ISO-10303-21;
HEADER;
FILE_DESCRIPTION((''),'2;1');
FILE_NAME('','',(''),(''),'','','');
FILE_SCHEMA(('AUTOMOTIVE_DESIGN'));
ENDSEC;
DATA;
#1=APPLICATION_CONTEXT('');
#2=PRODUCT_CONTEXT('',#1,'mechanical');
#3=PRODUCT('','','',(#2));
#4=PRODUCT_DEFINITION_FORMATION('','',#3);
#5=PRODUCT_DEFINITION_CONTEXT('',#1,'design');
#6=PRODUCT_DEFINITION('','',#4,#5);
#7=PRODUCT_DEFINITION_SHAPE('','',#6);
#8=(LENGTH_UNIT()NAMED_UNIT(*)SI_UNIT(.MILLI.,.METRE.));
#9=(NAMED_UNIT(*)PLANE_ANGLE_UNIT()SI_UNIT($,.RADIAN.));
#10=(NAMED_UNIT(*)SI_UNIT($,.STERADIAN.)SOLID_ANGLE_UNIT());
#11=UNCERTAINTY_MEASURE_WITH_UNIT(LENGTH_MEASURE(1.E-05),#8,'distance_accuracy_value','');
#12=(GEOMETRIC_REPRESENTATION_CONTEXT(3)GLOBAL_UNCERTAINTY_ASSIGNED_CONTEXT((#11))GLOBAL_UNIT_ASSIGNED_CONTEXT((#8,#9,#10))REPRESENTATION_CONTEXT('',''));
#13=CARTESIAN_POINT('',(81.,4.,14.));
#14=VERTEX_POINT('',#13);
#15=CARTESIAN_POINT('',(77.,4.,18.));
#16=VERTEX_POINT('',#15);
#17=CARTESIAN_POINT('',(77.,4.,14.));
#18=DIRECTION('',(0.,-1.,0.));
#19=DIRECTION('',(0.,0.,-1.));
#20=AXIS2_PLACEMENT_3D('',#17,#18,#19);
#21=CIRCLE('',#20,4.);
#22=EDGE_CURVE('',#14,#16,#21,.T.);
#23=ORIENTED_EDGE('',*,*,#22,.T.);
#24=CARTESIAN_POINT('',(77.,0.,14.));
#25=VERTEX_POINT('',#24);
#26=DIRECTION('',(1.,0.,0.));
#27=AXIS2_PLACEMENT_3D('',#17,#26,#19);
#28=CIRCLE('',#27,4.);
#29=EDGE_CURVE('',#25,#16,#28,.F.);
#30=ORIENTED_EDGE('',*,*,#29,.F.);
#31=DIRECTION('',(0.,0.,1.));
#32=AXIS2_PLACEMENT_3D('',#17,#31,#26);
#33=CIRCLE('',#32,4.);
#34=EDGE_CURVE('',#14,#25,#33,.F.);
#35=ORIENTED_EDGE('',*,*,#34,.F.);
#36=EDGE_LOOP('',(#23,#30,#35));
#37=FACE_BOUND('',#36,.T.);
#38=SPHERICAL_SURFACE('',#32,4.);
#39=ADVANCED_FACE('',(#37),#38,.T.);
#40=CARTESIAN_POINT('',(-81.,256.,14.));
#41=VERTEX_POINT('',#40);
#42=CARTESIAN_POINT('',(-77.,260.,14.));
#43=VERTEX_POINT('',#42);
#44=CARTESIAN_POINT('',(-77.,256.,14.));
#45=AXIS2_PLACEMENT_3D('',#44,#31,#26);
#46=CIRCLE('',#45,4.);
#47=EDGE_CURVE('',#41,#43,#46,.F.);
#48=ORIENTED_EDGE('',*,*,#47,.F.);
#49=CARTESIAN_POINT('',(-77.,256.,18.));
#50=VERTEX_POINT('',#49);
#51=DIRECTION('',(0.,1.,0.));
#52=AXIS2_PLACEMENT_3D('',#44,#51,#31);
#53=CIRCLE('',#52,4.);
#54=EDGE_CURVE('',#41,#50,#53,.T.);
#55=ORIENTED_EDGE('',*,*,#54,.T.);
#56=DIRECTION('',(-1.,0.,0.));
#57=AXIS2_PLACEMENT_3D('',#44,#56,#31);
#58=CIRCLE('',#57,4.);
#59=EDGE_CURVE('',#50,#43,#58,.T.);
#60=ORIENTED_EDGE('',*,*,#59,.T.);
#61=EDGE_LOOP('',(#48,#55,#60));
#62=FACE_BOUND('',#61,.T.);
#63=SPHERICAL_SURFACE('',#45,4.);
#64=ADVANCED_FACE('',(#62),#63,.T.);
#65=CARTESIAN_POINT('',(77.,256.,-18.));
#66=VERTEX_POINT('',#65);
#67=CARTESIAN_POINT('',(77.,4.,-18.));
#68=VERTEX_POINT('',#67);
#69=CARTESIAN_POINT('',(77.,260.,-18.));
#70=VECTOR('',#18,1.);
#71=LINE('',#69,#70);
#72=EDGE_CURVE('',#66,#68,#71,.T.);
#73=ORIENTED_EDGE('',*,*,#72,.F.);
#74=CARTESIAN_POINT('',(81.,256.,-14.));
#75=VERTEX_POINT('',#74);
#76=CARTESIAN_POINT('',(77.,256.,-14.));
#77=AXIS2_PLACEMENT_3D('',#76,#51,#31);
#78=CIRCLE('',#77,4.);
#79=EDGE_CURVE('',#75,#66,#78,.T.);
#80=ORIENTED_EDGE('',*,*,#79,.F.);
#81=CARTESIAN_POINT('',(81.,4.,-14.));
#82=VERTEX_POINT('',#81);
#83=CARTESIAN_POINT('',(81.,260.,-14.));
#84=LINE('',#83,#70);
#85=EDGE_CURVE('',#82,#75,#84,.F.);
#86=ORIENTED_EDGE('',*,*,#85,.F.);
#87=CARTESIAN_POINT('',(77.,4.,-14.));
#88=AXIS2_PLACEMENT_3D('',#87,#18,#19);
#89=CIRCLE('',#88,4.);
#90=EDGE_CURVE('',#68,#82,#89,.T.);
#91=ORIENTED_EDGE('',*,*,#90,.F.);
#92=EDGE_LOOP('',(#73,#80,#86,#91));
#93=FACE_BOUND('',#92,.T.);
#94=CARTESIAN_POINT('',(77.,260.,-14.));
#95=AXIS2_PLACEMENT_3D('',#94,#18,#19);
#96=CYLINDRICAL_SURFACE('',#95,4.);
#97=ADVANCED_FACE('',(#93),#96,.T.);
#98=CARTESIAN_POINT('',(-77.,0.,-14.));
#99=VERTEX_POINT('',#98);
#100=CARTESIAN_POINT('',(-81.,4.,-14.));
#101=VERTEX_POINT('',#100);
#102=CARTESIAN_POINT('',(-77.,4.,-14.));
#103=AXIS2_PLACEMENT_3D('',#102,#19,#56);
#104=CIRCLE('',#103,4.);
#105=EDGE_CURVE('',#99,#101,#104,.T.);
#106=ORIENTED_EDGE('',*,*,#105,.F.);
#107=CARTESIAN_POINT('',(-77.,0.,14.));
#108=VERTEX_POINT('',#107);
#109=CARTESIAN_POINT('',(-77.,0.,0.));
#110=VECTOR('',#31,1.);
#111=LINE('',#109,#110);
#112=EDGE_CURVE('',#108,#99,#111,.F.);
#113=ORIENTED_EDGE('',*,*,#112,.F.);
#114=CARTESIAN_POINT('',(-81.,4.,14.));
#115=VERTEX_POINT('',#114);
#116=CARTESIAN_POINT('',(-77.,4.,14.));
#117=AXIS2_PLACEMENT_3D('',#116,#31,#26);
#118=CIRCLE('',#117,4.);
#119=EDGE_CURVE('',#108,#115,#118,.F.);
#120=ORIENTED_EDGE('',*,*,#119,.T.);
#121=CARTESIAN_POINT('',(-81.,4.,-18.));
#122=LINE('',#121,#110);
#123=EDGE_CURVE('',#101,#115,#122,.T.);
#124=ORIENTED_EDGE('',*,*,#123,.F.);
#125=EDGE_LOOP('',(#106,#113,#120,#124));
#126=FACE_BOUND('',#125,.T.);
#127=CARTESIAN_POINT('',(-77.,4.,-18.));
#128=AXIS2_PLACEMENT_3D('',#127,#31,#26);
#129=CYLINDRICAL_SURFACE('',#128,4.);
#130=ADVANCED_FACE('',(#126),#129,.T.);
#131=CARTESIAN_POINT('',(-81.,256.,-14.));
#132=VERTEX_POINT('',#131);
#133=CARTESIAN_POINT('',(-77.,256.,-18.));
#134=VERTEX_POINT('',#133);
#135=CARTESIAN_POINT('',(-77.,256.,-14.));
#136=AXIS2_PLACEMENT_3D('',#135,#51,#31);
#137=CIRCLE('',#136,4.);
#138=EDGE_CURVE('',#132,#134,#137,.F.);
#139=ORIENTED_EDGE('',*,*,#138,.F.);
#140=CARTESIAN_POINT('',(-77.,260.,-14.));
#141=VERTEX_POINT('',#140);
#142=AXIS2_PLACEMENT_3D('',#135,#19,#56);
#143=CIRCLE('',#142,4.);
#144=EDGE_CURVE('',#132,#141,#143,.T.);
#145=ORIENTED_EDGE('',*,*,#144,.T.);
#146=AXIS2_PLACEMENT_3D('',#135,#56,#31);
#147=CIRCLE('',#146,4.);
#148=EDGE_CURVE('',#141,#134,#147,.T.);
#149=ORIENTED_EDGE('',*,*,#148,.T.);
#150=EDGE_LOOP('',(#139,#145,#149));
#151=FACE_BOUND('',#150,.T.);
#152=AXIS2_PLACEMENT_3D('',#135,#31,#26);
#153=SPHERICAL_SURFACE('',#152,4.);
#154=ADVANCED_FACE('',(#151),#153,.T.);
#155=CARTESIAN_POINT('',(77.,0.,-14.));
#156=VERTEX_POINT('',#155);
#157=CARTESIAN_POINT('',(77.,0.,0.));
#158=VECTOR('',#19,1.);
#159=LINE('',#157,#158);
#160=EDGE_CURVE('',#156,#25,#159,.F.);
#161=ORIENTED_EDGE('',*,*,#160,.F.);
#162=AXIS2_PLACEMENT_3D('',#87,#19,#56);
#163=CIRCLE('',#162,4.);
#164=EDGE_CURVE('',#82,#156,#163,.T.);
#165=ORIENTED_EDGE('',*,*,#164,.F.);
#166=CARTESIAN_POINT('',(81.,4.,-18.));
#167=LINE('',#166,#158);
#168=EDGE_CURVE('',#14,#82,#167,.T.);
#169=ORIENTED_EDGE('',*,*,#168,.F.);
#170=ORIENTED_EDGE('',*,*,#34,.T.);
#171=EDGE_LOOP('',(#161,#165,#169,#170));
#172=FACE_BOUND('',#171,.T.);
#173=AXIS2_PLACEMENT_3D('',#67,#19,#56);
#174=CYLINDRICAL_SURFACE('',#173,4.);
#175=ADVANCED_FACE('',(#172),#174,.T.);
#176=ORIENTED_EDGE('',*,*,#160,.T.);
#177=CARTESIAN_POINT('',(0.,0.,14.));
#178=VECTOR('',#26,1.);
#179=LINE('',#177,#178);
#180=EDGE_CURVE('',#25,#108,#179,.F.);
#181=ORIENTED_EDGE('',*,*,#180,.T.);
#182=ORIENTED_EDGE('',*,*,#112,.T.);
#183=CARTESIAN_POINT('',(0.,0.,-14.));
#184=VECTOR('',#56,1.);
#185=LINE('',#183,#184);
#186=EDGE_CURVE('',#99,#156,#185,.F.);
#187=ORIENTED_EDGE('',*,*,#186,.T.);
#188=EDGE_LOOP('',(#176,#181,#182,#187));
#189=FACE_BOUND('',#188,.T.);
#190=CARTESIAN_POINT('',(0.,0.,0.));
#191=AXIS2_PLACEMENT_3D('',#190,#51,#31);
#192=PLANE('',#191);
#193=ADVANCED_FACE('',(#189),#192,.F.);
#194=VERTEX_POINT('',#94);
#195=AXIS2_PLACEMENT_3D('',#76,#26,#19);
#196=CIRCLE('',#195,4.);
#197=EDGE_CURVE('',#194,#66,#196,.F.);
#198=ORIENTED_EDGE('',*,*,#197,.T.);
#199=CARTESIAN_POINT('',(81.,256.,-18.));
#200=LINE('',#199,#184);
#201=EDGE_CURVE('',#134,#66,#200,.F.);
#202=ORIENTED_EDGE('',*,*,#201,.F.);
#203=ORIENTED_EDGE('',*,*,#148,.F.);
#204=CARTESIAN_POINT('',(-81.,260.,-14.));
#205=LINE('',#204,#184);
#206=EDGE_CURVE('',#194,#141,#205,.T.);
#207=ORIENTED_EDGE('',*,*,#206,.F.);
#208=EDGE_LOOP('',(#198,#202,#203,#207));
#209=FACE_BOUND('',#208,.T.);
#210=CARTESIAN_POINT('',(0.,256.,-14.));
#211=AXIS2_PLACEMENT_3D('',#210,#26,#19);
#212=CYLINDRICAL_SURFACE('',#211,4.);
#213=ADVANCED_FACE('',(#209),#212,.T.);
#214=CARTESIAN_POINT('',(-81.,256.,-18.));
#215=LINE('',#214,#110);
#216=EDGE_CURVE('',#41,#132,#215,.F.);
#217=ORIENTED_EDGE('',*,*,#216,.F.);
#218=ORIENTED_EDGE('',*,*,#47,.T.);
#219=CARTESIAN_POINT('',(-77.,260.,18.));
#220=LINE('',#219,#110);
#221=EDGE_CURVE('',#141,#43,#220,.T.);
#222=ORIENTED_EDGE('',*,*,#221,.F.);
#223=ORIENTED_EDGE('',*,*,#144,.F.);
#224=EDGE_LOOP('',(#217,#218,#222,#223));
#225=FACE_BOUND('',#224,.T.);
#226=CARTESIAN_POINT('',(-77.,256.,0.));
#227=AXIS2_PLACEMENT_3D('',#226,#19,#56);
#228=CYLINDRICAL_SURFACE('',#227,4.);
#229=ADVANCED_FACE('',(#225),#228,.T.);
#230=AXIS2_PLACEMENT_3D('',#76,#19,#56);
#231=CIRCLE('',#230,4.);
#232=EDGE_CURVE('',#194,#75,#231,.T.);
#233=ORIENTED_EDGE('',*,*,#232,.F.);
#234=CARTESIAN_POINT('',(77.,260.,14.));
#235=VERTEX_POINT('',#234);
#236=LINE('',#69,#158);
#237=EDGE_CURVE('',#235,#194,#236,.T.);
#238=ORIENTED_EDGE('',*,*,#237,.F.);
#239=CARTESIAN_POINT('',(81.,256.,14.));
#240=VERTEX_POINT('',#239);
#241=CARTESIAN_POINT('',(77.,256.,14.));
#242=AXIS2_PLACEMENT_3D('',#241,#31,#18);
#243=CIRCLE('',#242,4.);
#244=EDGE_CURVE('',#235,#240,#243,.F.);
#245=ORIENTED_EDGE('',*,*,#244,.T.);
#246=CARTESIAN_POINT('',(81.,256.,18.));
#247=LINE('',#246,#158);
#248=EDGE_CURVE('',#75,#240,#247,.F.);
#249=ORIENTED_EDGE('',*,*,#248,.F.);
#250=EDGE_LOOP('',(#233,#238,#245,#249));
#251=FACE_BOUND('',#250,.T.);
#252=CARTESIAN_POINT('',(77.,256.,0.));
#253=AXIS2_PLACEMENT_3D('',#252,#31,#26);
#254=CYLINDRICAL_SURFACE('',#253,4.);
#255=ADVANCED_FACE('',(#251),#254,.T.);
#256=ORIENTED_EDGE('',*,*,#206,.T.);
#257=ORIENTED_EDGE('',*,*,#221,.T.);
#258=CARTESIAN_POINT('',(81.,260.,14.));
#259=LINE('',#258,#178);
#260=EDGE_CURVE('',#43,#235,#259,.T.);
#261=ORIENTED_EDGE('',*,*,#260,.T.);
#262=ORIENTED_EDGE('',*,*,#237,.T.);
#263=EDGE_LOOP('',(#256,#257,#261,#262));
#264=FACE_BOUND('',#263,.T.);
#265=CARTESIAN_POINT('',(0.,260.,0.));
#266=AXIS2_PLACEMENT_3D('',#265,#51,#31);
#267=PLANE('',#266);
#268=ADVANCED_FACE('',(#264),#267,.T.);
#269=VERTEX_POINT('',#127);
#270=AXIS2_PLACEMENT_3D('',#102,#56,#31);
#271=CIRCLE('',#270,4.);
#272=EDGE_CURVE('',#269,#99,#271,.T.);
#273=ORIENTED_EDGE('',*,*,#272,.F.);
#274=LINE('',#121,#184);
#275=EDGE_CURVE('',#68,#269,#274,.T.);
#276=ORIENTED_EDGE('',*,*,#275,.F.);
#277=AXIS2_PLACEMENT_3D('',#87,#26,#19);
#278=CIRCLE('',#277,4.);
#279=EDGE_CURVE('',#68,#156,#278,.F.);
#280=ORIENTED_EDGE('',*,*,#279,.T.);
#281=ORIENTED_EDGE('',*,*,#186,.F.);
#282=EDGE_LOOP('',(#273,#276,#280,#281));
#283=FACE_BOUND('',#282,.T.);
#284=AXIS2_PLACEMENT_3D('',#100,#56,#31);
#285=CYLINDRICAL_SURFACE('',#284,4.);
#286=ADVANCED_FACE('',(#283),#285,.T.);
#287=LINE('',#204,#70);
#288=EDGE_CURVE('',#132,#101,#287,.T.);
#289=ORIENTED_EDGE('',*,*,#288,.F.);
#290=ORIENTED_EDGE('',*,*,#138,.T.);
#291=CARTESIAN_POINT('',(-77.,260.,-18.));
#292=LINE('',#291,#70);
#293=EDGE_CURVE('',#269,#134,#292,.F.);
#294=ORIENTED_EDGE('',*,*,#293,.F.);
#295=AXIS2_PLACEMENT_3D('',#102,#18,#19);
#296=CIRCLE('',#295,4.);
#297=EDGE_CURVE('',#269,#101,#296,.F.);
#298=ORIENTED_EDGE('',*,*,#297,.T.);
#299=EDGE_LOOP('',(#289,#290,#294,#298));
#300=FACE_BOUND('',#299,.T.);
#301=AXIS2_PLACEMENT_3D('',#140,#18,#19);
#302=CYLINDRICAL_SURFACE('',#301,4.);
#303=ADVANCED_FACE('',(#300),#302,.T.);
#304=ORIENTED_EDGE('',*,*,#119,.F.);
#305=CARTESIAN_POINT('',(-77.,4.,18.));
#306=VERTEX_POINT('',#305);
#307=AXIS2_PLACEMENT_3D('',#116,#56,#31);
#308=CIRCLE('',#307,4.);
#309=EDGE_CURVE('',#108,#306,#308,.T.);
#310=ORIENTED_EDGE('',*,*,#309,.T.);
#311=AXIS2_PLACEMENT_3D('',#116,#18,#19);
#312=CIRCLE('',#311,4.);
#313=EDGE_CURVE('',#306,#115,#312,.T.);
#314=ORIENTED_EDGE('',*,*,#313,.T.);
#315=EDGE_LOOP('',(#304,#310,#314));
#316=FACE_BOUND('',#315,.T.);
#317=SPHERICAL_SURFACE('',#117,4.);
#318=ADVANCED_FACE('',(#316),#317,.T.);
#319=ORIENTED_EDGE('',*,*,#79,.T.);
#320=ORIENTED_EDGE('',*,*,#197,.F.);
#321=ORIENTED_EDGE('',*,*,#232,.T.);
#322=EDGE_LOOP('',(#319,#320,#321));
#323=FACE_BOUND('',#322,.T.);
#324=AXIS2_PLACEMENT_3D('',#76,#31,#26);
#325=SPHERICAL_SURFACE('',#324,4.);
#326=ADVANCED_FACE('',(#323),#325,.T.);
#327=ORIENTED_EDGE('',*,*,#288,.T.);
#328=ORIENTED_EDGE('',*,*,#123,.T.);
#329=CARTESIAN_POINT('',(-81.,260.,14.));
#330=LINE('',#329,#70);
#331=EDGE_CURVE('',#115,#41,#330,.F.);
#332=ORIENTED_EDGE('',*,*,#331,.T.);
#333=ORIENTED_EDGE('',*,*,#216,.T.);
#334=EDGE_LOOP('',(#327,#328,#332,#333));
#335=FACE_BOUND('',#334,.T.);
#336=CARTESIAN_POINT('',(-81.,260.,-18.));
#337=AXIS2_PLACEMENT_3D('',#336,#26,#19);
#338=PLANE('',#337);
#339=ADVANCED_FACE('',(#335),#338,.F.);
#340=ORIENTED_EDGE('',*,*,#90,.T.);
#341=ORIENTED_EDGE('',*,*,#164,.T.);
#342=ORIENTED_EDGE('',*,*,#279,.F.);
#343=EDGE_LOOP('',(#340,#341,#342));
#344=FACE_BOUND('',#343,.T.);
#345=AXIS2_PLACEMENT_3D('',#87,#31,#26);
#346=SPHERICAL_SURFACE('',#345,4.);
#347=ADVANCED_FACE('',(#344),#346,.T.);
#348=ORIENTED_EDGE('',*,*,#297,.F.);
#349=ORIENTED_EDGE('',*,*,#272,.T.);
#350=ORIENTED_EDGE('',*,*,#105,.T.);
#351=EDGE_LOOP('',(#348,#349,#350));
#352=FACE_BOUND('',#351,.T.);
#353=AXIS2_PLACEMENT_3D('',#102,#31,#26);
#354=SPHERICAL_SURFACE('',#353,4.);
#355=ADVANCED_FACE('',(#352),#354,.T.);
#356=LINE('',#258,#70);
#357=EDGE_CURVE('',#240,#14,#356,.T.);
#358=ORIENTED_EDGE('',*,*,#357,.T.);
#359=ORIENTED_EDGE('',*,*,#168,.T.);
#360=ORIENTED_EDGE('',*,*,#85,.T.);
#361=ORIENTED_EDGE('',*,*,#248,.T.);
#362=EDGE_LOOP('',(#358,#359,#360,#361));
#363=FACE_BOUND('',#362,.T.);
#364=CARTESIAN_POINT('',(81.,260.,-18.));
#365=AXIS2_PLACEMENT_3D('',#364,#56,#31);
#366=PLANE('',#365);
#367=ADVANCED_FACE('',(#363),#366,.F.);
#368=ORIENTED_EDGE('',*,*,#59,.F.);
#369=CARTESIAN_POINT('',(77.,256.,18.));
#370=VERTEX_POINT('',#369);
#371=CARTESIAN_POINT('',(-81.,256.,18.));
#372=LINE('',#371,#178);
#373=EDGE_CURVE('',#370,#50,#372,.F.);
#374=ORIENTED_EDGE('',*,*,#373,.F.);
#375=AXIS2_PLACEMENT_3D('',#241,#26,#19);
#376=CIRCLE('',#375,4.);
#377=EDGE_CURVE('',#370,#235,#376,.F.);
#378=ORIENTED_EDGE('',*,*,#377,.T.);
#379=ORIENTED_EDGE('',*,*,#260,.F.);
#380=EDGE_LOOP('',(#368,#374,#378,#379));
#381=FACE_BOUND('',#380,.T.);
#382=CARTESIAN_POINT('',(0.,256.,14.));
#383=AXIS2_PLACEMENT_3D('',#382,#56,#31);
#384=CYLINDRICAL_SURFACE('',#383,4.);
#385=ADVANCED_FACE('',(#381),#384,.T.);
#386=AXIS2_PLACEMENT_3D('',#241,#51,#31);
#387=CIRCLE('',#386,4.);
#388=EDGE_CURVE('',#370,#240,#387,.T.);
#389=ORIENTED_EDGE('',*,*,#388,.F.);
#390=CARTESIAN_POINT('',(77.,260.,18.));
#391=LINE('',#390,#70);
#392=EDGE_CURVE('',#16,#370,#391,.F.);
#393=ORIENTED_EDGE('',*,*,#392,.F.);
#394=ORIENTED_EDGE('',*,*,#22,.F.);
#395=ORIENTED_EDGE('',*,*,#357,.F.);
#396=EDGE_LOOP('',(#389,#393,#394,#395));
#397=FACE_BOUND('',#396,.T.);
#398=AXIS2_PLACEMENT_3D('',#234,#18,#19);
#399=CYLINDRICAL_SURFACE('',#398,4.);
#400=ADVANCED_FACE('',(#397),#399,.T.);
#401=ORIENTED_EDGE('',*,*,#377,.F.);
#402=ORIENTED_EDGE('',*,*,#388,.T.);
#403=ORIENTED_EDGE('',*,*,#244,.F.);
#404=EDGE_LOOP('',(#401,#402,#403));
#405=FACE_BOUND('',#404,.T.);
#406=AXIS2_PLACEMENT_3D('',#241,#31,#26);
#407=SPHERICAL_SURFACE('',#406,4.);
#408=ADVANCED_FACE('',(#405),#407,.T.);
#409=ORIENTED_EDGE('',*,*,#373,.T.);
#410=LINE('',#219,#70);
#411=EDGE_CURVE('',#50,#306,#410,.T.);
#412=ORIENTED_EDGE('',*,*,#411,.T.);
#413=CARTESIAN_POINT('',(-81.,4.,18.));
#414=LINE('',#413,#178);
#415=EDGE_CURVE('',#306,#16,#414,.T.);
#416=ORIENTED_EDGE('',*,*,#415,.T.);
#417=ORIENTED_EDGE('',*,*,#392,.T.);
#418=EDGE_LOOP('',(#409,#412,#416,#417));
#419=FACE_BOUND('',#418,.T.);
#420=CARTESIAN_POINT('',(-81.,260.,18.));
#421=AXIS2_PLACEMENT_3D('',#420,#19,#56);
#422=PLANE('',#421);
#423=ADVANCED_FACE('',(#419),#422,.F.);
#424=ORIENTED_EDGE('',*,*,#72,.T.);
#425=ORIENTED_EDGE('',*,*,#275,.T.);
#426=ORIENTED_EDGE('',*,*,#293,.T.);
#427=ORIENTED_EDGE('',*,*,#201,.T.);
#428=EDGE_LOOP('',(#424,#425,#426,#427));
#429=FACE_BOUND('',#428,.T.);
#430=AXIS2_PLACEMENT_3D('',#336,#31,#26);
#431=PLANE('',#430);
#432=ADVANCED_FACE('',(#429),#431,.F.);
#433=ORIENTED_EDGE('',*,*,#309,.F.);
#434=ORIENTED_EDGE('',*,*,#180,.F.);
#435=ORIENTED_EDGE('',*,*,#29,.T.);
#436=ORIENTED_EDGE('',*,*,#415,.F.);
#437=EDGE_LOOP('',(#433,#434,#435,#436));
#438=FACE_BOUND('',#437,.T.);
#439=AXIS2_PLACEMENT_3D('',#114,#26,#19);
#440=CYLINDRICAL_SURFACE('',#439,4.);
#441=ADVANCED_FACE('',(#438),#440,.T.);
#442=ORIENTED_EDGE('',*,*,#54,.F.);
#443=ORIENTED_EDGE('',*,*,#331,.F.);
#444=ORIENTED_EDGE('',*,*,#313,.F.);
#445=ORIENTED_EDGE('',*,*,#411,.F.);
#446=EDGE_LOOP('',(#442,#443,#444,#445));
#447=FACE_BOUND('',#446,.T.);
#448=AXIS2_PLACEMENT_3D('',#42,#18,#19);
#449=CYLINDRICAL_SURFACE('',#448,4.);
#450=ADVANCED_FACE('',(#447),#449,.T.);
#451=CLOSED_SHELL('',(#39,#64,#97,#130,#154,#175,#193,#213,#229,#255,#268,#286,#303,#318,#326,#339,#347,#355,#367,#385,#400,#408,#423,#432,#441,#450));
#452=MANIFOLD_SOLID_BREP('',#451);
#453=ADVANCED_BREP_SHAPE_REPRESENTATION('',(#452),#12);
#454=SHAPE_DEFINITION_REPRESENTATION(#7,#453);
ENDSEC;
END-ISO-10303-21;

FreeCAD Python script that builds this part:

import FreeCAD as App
import Part
import Sketcher

V = App.Vector
Q = App.Units.Quantity


def add_polygon(sketch, points):
    """Adds a closed chain of lines whose ends are joined by coincident constraints."""
    first, n = sketch.GeometryCount, len(points)
    for a, b in zip(points, points[1:] + points[:1]):
        sketch.addGeometry(Part.LineSegment(App.Vector(*a, 0), App.Vector(*b, 0)), False)
    for i in range(n):
        sketch.addConstraint(Sketcher.Constraint("Coincident", first + i, 2, first + (i + 1) % n, 1))

doc = App.newDocument("Part")
body = doc.addObject("PartDesign::Body", "Body")

# Sketch on XZ plane
sketch1 = body.newObject("Sketcher::SketchObject", "Sketch")
sketch1.AttachmentSupport = (doc.getObject("XZ_Plane"), [""])
sketch1.MapMode = "FlatFace"
add_polygon(sketch1, [(-81, -18), (-81, 18), (81, 18), (81, -18)])  # lines 0-3
sketch1.addConstraint(Sketcher.Constraint("Vertical", 0))
sketch1.addConstraint(Sketcher.Constraint("Horizontal", 1))
sketch1.addConstraint(Sketcher.Constraint("Vertical", 2))
sketch1.addConstraint(Sketcher.Constraint("Horizontal", 3))
sketch1.addConstraint(Sketcher.Constraint("Symmetric", 0, 2, 2, 2, -1, 1))
sketch1.addConstraint(Sketcher.Constraint("DistanceX", 1, 1, 1, 2, Q("162 mm")))
sketch1.addConstraint(Sketcher.Constraint("DistanceY", 0, 1, 0, 2, Q("36 mm")))
pad1 = body.newObject("PartDesign::Pad", "Pad")
pad1.Profile = sketch1
pad1.Length = 260
pad1.Reversed = True
doc.recompute()

fillet = body.newObject("PartDesign::Fillet", "Fillet")
fillet.Base = (pad1, ["Edge1"])
fillet.UseAllEdges = True
fillet.Radius = 4

doc.recompute()
